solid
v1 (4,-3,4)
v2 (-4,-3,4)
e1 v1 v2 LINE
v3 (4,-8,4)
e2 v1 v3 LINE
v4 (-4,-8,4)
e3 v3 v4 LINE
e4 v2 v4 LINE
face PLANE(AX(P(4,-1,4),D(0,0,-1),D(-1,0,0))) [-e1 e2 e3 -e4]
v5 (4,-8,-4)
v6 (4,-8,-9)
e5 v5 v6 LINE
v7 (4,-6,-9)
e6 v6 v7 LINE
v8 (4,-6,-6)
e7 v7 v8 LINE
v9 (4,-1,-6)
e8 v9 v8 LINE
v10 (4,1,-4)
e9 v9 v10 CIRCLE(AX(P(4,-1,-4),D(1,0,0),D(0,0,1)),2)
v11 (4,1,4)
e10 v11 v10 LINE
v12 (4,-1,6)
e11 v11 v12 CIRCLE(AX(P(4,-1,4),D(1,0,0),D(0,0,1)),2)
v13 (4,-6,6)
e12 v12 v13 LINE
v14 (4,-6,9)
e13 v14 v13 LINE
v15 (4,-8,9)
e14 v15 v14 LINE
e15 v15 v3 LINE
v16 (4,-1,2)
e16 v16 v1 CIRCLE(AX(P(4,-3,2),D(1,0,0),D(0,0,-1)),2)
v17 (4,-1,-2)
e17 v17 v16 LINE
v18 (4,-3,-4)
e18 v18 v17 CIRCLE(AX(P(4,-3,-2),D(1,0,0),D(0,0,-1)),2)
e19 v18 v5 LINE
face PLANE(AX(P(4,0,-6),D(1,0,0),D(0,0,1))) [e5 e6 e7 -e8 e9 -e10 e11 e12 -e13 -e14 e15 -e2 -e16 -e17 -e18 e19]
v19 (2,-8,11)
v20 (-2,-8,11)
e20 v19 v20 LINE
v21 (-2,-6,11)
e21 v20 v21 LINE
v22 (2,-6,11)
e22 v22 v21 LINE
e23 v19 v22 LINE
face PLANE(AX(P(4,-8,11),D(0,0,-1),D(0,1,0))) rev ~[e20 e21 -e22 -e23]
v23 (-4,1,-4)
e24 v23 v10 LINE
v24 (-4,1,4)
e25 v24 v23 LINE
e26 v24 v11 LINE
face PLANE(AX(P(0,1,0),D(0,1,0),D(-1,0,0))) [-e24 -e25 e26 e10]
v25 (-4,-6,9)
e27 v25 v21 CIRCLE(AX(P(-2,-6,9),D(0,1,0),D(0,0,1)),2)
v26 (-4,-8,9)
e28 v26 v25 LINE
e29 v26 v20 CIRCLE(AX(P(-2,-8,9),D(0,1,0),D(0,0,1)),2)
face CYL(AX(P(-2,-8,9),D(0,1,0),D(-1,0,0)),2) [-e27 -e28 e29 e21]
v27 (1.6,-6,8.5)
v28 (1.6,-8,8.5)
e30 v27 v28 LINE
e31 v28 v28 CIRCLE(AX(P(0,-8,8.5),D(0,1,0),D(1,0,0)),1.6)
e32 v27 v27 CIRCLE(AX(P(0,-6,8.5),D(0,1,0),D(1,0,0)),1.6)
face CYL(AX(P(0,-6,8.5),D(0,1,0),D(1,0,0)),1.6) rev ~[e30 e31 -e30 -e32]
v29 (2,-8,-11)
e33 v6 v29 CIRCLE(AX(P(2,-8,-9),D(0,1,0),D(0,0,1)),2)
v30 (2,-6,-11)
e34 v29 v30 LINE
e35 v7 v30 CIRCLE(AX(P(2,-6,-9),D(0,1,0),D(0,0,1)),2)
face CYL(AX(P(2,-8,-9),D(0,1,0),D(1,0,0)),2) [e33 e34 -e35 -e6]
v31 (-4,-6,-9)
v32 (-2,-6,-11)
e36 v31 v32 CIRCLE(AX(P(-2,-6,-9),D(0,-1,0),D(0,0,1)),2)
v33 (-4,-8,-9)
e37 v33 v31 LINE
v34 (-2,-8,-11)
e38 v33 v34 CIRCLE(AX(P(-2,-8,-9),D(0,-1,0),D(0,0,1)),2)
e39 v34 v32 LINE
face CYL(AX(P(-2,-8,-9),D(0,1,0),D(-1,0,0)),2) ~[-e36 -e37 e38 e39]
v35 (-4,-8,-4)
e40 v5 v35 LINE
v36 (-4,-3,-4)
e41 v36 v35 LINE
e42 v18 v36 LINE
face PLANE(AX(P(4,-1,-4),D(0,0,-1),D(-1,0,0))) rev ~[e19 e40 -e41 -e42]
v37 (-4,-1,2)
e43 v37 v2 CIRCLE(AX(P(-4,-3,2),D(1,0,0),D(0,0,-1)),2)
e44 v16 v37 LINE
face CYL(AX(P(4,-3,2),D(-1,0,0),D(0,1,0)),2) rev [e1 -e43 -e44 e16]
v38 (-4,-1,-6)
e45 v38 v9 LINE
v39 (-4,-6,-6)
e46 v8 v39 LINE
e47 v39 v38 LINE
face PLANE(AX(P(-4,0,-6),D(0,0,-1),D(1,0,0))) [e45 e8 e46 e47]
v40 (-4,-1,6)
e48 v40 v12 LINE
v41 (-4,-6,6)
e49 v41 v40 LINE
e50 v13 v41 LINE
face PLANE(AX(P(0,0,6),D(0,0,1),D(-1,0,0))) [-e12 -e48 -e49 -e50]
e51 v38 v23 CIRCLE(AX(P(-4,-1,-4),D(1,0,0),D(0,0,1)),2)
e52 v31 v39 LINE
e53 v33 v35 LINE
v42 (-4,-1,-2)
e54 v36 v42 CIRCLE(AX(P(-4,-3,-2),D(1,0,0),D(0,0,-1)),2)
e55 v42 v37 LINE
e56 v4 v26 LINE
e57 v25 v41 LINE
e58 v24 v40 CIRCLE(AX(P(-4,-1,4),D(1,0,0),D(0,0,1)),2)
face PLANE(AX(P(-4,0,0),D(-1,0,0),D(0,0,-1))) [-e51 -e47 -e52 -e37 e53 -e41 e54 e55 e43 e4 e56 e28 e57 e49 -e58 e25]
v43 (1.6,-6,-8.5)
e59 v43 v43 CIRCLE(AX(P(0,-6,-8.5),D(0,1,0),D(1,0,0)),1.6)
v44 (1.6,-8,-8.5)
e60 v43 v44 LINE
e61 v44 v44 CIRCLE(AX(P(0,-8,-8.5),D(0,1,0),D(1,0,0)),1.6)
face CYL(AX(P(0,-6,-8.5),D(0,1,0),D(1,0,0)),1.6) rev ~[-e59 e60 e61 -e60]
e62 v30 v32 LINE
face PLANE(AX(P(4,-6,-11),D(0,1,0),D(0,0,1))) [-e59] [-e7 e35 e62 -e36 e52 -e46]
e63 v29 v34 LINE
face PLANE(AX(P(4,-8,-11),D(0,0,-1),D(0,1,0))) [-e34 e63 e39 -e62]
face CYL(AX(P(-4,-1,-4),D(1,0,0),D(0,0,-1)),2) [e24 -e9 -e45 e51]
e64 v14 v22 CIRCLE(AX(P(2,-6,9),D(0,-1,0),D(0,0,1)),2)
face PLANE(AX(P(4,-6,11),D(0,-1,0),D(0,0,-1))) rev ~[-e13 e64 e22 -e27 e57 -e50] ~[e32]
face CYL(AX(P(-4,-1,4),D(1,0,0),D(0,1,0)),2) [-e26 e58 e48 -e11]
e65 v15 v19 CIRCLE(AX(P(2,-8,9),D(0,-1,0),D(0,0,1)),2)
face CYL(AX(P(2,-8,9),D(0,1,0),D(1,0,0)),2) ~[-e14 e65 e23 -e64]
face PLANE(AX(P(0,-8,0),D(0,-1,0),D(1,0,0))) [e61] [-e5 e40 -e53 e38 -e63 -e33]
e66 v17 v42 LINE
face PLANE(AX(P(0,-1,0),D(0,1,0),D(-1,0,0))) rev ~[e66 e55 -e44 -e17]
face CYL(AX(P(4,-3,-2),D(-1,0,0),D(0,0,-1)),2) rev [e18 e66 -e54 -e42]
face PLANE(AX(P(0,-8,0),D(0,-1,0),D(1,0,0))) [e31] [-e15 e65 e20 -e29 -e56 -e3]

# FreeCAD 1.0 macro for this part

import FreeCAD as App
import Part
import Sketcher


def edges_at(feature, points):
    """Names of the edges that pass closest to the given points."""
    edges = feature.Shape.Edges
    near = lambda p: min(range(len(edges)), key=lambda i: edges[i].distToShape(Part.Vertex(*p))[0])
    return sorted({f"Edge{near(p) + 1}" for p in points})

doc = App.newDocument("Part")
body = doc.addObject("PartDesign::Body", "Body")

sketch1 = body.newObject("Sketcher::SketchObject", "Sketch")
sketch1.AttachmentSupport = (doc.getObject("XZ_Plane"), [""])
sketch1.MapMode = "FlatFace"
sketch1.addGeometry([
    Part.LineSegment(App.Vector(-4, -6, 0), App.Vector(-4, 6, 0)),
    Part.LineSegment(App.Vector(-4, 6, 0), App.Vector(4, 6, 0)),
    Part.LineSegment(App.Vector(4, 6, 0), App.Vector(4, -6, 0)),
    Part.LineSegment(App.Vector(4, -6, 0), App.Vector(-4, -6, 0)),
], False)
sketch1.addConstraint([
    Sketcher.Constraint("Coincident", 0, 2, 1, 1),
    Sketcher.Constraint("Coincident", 1, 2, 2, 1),
    Sketcher.Constraint("Coincident", 2, 2, 3, 1),
    Sketcher.Constraint("Coincident", 3, 2, 0, 1),
    Sketcher.Constraint("Vertical", 0),
    Sketcher.Constraint("Horizontal", 1),
    Sketcher.Constraint("Vertical", 2),
    Sketcher.Constraint("Horizontal", 3),
    Sketcher.Constraint("Symmetric", 0, 2, 2, 2, -1, 1),
    Sketcher.Constraint("DistanceX", 1, 1, 1, 2, 8.0),
    Sketcher.Constraint("DistanceY", 0, 1, 0, 2, 12.0),
])
pad1 = body.newObject("PartDesign::Pad", "Pad")
pad1.Profile = sketch1
pad1.Length = 2
pad1.Midplane = True

sketch2 = body.newObject("Sketcher::SketchObject", "Sketch001")
sketch2.AttachmentSupport = (doc.getObject("XZ_Plane"), [""])
sketch2.MapMode = "FlatFace"
sketch2.AttachmentOffset = App.Placement(App.Vector(0, 0, 1), App.Rotation())
sketch2.addGeometry([
    Part.LineSegment(App.Vector(-4, -4, 0), App.Vector(-4, -6, 0)),
    Part.LineSegment(App.Vector(-4, -6, 0), App.Vector(4, -6, 0)),
    Part.LineSegment(App.Vector(4, -6, 0), App.Vector(4, -4, 0)),
    Part.LineSegment(App.Vector(4, -4, 0), App.Vector(-4, -4, 0)),
    Part.LineSegment(App.Vector(-4, 6, 0), App.Vector(-4, 4, 0)),
    Part.LineSegment(App.Vector(-4, 4, 0), App.Vector(4, 4, 0)),
    Part.LineSegment(App.Vector(4, 4, 0), App.Vector(4, 6, 0)),
    Part.LineSegment(App.Vector(4, 6, 0), App.Vector(-4, 6, 0)),
], False)
sketch2.addConstraint([
    Sketcher.Constraint("Coincident", 0, 2, 1, 1),
    Sketcher.Constraint("Coincident", 1, 2, 2, 1),
    Sketcher.Constraint("Coincident", 2, 2, 3, 1),
    Sketcher.Constraint("Coincident", 3, 2, 0, 1),
    Sketcher.Constraint("Coincident", 4, 2, 5, 1),
    Sketcher.Constraint("Coincident", 5, 2, 6, 1),
    Sketcher.Constraint("Coincident", 6, 2, 7, 1),
    Sketcher.Constraint("Coincident", 7, 2, 4, 1),
    Sketcher.Constraint("Vertical", 0),
    Sketcher.Constraint("Horizontal", 1),
    Sketcher.Constraint("Vertical", 2),
    Sketcher.Constraint("Horizontal", 3),
    Sketcher.Constraint("Vertical", 4),
    Sketcher.Constraint("Horizontal", 5),
    Sketcher.Constraint("Vertical", 6),
    Sketcher.Constraint("Horizontal", 7),
    Sketcher.Constraint("Symmetric", 2, 2, 4, 2, -1, 1),
    Sketcher.Constraint("Symmetric", 0, 2, 6, 2, -1, 1),
    Sketcher.Constraint("Vertical", 3, 2, 4, 2),
    Sketcher.Constraint("DistanceY", 0, 2, 0, 1, 2.0),
    Sketcher.Constraint("DistanceX", 1, 1, 1, 2, 8.0),
    Sketcher.Constraint("DistanceY", 0, 2, -1, 1, 6.0),
])
pad2 = body.newObject("PartDesign::Pad", "Pad001")
pad2.Profile = sketch2
pad2.Length = 7

sketch3 = body.newObject("Sketcher::SketchObject", "Sketch002")
sketch3.AttachmentSupport = (doc.getObject("YZ_Plane"), [""])
sketch3.MapMode = "FlatFace"
sketch3.AttachmentOffset = App.Placement(App.Vector(0, 0, 4), App.Rotation())
sketch3.addGeometry([
    Part.LineSegment(App.Vector(-8, 11, 0), App.Vector(-8, 6, 0)),
    Part.LineSegment(App.Vector(-8, 6, 0), App.Vector(-6, 6, 0)),
    Part.LineSegment(App.Vector(-6, 6, 0), App.Vector(-6, 11, 0)),
    Part.LineSegment(App.Vector(-6, 11, 0), App.Vector(-8, 11, 0)),
    Part.LineSegment(App.Vector(-6, -6, 0), App.Vector(-8, -6, 0)),
    Part.LineSegment(App.Vector(-8, -6, 0), App.Vector(-8, -11, 0)),
    Part.LineSegment(App.Vector(-8, -11, 0), App.Vector(-6, -11, 0)),
    Part.LineSegment(App.Vector(-6, -11, 0), App.Vector(-6, -6, 0)),
], False)
sketch3.addConstraint([
    Sketcher.Constraint("Coincident", 0, 2, 1, 1),
    Sketcher.Constraint("Coincident", 1, 2, 2, 1),
    Sketcher.Constraint("Coincident", 2, 2, 3, 1),
    Sketcher.Constraint("Coincident", 3, 2, 0, 1),
    Sketcher.Constraint("Coincident", 4, 2, 5, 1),
    Sketcher.Constraint("Coincident", 5, 2, 6, 1),
    Sketcher.Constraint("Coincident", 6, 2, 7, 1),
    Sketcher.Constraint("Coincident", 7, 2, 4, 1),
    Sketcher.Constraint("Vertical", 0),
    Sketcher.Constraint("Horizontal", 1),
    Sketcher.Constraint("Vertical", 2),
    Sketcher.Constraint("Horizontal", 3),
    Sketcher.Constraint("Horizontal", 4),
    Sketcher.Constraint("Vertical", 5),
    Sketcher.Constraint("Horizontal", 6),
    Sketcher.Constraint("Vertical", 7),
    Sketcher.Constraint("Symmetric", 0, 2, 4, 2, -1),
    Sketcher.Constraint("Symmetric", 2, 2, 6, 2, -1),
    Sketcher.Constraint("DistanceX", 1, 1, 1, 2, 2.0),
    Sketcher.Constraint("DistanceY", 0, 2, 0, 1, 5.0),
    Sketcher.Constraint("DistanceX", 0, 2, -1, 1, 8.0),
    Sketcher.Constraint("DistanceY", -1, 1, 0, 2, 6.0),
])
pad3 = body.newObject("PartDesign::Pad", "Pad002")
pad3.Profile = sketch3
pad3.Length = 8
pad3.Reversed = True

sketch4 = body.newObject("Sketcher::SketchObject", "Sketch003")
sketch4.AttachmentSupport = (doc.getObject("XZ_Plane"), [""])
sketch4.MapMode = "FlatFace"
sketch4.AttachmentOffset = App.Placement(App.Vector(0, 0, 6), App.Rotation())
sketch4.addGeometry([
    Part.Circle(App.Vector(0, 8.5, 0), App.Vector(0, 0, 1), 1.6),
    Part.Circle(App.Vector(0, -8.5, 0), App.Vector(0, 0, 1), 1.6),
], False)
sketch4.addConstraint([
    Sketcher.Constraint("Equal", 0, 1),
    Sketcher.Constraint("Symmetric", 0, 3, 1, 3, -1, 1),
    Sketcher.Constraint("PointOnObject", 0, 3, -2),
    Sketcher.Constraint("Diameter", 0, 3.2),
    Sketcher.Constraint("DistanceY", 1, 3, 0, 3, 17.0),
])
pocket1 = body.newObject("PartDesign::Pocket", "Pocket")
pocket1.Profile = sketch4
pocket1.Length = 2
pocket1.Reversed = True
doc.recompute()

fillet = body.newObject("PartDesign::Fillet", "Fillet")
fillet.Base = (pocket1, edges_at(pocket1, [
    (0, 1, 6),
    (0, 1, -6),
    (0, -1, 4),
    (0, -1, -4),
    (-4, -7, 11),
    (4, -7, 11),
    (4, -7, -11),
    (-4, -7, -11),
]))
fillet.Radius = 2

doc.recompute()
